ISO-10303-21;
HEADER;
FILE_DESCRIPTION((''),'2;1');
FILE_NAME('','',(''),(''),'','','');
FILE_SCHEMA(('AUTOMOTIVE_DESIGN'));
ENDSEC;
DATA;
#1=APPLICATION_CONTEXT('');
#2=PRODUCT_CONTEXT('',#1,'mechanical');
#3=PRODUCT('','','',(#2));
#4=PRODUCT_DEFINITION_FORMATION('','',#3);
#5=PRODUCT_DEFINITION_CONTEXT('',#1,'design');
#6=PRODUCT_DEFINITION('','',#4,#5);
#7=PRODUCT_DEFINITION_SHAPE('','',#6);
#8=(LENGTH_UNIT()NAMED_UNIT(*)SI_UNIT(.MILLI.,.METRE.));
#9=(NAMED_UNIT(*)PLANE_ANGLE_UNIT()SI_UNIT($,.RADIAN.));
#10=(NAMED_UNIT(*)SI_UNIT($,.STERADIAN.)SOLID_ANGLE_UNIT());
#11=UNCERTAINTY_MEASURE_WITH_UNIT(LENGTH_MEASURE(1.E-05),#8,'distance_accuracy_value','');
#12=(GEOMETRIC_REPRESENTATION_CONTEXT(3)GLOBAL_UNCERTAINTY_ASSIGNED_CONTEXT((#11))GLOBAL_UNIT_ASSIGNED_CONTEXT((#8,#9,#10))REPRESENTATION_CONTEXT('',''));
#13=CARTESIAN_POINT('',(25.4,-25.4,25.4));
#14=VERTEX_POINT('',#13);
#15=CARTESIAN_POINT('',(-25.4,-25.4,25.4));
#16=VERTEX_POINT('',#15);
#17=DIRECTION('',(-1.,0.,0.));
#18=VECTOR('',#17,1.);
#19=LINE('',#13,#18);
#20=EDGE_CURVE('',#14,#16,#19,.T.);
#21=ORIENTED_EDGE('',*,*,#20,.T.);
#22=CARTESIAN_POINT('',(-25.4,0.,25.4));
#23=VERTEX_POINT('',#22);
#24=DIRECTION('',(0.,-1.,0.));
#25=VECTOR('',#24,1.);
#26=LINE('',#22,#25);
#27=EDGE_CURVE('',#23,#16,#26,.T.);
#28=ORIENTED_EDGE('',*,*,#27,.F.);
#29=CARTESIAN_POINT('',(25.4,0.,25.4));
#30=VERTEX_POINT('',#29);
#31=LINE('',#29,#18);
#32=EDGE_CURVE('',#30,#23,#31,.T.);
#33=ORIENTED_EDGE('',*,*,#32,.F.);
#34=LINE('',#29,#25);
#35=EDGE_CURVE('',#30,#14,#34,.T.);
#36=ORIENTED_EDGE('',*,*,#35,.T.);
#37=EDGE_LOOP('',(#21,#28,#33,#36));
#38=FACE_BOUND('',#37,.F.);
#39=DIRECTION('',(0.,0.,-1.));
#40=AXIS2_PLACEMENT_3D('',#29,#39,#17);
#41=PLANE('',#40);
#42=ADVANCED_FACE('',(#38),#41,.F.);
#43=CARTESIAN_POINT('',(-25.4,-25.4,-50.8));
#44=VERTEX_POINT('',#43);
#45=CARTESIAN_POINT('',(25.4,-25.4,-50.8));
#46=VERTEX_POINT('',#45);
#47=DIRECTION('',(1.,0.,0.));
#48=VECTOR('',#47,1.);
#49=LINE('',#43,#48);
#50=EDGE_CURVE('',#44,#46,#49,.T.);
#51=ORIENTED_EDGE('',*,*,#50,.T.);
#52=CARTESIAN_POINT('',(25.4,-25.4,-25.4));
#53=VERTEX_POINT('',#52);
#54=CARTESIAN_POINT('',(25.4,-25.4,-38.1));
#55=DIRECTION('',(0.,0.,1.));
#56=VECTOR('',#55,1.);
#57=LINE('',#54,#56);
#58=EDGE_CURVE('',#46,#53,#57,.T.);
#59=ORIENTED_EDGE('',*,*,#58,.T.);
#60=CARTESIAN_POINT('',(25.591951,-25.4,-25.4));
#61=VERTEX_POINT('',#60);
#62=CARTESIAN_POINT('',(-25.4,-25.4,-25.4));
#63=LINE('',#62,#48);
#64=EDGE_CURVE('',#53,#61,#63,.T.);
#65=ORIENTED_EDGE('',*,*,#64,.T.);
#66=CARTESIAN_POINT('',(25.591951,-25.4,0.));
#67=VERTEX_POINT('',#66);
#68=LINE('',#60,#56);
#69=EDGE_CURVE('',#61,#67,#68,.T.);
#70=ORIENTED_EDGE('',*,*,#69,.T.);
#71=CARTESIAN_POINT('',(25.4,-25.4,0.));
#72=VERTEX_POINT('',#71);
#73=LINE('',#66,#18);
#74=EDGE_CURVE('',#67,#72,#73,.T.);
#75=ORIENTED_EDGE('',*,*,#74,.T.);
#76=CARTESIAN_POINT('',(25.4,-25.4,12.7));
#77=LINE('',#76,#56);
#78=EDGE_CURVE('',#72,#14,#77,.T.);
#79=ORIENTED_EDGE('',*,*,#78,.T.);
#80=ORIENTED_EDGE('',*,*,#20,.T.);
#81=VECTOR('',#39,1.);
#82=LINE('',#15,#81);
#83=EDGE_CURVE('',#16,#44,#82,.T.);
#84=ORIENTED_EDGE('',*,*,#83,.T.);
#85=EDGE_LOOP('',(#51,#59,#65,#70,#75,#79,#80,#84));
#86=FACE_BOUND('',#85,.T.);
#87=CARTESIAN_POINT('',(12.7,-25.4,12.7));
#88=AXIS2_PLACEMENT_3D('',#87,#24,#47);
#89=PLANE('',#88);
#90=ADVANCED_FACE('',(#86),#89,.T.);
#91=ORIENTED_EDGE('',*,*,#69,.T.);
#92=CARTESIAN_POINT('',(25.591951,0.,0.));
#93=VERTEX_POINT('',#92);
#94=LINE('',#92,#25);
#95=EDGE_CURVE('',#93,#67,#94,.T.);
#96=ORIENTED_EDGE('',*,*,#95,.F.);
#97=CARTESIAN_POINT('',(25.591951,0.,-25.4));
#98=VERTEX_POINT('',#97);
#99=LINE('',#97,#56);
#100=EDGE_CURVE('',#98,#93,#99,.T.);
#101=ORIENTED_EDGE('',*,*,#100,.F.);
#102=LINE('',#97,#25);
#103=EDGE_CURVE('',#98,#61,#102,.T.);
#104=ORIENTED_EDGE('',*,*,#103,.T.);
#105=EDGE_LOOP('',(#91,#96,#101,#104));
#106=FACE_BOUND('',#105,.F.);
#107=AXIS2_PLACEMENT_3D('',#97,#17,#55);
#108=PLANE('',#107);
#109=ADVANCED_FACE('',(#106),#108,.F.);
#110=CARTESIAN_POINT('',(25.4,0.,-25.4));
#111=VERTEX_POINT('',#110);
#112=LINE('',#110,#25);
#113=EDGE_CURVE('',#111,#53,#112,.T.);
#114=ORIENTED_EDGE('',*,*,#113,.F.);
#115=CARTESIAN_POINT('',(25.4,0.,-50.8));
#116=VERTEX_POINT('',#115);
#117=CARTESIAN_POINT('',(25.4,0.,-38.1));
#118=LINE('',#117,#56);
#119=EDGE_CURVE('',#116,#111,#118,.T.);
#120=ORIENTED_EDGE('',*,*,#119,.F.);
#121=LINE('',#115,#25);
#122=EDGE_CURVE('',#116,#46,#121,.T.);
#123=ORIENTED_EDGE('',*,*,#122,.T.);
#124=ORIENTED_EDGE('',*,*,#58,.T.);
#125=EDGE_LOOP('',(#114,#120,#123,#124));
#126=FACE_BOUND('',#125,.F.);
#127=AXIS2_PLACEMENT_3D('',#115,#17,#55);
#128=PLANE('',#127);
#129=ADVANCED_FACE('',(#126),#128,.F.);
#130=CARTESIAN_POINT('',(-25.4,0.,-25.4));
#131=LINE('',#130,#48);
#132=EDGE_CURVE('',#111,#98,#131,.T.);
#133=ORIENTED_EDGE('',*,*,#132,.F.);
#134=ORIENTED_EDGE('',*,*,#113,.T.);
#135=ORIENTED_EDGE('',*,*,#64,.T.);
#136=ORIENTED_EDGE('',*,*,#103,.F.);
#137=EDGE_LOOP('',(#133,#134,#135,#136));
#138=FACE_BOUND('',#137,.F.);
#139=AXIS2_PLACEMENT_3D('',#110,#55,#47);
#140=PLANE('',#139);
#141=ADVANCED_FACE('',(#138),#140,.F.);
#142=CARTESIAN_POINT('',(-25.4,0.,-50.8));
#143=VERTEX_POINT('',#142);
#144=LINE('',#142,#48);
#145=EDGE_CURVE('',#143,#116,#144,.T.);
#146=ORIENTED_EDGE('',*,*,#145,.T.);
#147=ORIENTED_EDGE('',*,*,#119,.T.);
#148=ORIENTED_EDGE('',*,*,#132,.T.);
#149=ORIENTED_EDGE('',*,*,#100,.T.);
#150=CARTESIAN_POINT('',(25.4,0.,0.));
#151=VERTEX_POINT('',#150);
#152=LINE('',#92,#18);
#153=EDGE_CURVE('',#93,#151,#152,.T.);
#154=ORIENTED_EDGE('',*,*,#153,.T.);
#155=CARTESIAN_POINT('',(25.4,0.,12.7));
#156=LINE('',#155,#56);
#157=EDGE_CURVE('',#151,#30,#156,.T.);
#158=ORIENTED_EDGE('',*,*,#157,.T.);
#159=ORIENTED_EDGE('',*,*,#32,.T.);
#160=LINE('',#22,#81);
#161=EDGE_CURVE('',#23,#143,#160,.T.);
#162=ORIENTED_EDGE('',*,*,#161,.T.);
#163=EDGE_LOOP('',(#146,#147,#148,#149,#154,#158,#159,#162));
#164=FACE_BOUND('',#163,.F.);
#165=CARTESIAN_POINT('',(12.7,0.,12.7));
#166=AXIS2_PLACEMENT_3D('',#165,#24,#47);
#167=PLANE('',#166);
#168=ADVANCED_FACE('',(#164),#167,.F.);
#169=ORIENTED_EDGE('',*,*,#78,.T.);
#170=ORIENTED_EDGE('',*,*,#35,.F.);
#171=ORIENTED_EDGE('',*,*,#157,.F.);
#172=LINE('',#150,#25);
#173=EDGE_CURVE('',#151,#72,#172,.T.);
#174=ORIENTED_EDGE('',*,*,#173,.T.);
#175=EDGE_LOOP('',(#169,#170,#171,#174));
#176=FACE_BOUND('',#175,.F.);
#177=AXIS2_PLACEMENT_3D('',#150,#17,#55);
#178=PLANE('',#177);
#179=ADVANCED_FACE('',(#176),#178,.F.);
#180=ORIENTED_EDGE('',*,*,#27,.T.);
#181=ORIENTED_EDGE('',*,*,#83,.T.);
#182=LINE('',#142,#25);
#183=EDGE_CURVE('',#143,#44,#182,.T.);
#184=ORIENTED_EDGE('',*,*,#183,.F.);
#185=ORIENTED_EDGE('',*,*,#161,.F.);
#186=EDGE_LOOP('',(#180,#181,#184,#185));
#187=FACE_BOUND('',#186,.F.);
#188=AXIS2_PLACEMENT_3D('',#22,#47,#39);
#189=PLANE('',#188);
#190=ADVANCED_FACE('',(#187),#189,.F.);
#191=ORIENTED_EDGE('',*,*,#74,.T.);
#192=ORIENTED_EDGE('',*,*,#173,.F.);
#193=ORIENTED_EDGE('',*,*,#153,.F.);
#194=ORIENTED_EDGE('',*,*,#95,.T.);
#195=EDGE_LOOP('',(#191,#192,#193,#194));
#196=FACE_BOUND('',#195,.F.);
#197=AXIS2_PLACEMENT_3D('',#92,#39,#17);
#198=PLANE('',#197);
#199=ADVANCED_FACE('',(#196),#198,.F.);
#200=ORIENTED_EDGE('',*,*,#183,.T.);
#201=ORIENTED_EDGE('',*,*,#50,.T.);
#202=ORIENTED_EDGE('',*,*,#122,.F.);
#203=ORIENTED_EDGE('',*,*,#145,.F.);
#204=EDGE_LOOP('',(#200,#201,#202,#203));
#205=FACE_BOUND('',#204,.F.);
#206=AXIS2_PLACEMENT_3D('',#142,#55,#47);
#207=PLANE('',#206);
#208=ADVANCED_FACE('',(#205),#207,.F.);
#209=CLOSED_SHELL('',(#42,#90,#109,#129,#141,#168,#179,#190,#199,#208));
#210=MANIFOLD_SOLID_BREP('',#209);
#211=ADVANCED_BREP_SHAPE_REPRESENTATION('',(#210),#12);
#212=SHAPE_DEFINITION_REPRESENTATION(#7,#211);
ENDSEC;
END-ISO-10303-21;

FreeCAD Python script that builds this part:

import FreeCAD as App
import Part
import Sketcher
Q = App.Units.Quantity


def add_polygon(sketch, points):
    """Adds a closed chain of lines whose ends are joined by coincident constraints."""
    first, n = sketch.GeometryCount, len(points)
    for a, b in zip(points, points[1:] + points[:1]):
        sketch.addGeometry(Part.LineSegment(App.Vector(*a, 0), App.Vector(*b, 0)), False)
    for i in range(n):
        sketch.addConstraint(Sketcher.Constraint("Coincident", first + i, 2, first + (i + 1) % n, 1))

doc = App.newDocument("Part")
body = doc.addObject("PartDesign::Body", "Body")

sketch1 = body.newObject("Sketcher::SketchObject", "Sketch")
sketch1.AttachmentSupport = (doc.getObject("XZ_Plane"), [""])
sketch1.MapMode = "FlatFace"
add_polygon(sketch1, [(25.4, 0), (25.4, 25.4), (-25.4, 25.4), (-25.4, -50.8), (25.4, -50.8), (25.4, -25.4), (25.591951, -25.4), (25.591951, 0)])
sketch1.addConstraint(Sketcher.Constraint("Vertical", 0))
sketch1.addConstraint(Sketcher.Constraint("Horizontal", 1))
sketch1.addConstraint(Sketcher.Constraint("Vertical", 2))
sketch1.addConstraint(Sketcher.Constraint("Horizontal", 3))
sketch1.addConstraint(Sketcher.Constraint("Vertical", 4))
sketch1.addConstraint(Sketcher.Constraint("Horizontal", 5))
sketch1.addConstraint(Sketcher.Constraint("Vertical", 6))
sketch1.addConstraint(Sketcher.Constraint("Horizontal", 7))
sketch1.addConstraint(Sketcher.Constraint("Symmetric", 1, 2, 4, 2, -1, 1))
sketch1.addConstraint(Sketcher.Constraint("PointOnObject", 6, 2, -1))
sketch1.addConstraint(Sketcher.Constraint("Vertical", 0, 2, 3, 2))
sketch1.addConstraint(Sketcher.Constraint("Equal", 0, 4))
sketch1.addConstraint(Sketcher.Constraint("DistanceX", 1, 2, 1, 1, Q("2 in")))
sketch1.addConstraint(Sketcher.Constraint("DistanceY", 0, 1, 0, 2, Q("1 in")))
sketch1.addConstraint(Sketcher.Constraint("DistanceX", 5, 1, 5, 2, 0.191951))
pad1 = body.newObject("PartDesign::Pad", "Pad")
pad1.Profile = sketch1
pad1.Length = Q("1 in")

doc.recompute()
